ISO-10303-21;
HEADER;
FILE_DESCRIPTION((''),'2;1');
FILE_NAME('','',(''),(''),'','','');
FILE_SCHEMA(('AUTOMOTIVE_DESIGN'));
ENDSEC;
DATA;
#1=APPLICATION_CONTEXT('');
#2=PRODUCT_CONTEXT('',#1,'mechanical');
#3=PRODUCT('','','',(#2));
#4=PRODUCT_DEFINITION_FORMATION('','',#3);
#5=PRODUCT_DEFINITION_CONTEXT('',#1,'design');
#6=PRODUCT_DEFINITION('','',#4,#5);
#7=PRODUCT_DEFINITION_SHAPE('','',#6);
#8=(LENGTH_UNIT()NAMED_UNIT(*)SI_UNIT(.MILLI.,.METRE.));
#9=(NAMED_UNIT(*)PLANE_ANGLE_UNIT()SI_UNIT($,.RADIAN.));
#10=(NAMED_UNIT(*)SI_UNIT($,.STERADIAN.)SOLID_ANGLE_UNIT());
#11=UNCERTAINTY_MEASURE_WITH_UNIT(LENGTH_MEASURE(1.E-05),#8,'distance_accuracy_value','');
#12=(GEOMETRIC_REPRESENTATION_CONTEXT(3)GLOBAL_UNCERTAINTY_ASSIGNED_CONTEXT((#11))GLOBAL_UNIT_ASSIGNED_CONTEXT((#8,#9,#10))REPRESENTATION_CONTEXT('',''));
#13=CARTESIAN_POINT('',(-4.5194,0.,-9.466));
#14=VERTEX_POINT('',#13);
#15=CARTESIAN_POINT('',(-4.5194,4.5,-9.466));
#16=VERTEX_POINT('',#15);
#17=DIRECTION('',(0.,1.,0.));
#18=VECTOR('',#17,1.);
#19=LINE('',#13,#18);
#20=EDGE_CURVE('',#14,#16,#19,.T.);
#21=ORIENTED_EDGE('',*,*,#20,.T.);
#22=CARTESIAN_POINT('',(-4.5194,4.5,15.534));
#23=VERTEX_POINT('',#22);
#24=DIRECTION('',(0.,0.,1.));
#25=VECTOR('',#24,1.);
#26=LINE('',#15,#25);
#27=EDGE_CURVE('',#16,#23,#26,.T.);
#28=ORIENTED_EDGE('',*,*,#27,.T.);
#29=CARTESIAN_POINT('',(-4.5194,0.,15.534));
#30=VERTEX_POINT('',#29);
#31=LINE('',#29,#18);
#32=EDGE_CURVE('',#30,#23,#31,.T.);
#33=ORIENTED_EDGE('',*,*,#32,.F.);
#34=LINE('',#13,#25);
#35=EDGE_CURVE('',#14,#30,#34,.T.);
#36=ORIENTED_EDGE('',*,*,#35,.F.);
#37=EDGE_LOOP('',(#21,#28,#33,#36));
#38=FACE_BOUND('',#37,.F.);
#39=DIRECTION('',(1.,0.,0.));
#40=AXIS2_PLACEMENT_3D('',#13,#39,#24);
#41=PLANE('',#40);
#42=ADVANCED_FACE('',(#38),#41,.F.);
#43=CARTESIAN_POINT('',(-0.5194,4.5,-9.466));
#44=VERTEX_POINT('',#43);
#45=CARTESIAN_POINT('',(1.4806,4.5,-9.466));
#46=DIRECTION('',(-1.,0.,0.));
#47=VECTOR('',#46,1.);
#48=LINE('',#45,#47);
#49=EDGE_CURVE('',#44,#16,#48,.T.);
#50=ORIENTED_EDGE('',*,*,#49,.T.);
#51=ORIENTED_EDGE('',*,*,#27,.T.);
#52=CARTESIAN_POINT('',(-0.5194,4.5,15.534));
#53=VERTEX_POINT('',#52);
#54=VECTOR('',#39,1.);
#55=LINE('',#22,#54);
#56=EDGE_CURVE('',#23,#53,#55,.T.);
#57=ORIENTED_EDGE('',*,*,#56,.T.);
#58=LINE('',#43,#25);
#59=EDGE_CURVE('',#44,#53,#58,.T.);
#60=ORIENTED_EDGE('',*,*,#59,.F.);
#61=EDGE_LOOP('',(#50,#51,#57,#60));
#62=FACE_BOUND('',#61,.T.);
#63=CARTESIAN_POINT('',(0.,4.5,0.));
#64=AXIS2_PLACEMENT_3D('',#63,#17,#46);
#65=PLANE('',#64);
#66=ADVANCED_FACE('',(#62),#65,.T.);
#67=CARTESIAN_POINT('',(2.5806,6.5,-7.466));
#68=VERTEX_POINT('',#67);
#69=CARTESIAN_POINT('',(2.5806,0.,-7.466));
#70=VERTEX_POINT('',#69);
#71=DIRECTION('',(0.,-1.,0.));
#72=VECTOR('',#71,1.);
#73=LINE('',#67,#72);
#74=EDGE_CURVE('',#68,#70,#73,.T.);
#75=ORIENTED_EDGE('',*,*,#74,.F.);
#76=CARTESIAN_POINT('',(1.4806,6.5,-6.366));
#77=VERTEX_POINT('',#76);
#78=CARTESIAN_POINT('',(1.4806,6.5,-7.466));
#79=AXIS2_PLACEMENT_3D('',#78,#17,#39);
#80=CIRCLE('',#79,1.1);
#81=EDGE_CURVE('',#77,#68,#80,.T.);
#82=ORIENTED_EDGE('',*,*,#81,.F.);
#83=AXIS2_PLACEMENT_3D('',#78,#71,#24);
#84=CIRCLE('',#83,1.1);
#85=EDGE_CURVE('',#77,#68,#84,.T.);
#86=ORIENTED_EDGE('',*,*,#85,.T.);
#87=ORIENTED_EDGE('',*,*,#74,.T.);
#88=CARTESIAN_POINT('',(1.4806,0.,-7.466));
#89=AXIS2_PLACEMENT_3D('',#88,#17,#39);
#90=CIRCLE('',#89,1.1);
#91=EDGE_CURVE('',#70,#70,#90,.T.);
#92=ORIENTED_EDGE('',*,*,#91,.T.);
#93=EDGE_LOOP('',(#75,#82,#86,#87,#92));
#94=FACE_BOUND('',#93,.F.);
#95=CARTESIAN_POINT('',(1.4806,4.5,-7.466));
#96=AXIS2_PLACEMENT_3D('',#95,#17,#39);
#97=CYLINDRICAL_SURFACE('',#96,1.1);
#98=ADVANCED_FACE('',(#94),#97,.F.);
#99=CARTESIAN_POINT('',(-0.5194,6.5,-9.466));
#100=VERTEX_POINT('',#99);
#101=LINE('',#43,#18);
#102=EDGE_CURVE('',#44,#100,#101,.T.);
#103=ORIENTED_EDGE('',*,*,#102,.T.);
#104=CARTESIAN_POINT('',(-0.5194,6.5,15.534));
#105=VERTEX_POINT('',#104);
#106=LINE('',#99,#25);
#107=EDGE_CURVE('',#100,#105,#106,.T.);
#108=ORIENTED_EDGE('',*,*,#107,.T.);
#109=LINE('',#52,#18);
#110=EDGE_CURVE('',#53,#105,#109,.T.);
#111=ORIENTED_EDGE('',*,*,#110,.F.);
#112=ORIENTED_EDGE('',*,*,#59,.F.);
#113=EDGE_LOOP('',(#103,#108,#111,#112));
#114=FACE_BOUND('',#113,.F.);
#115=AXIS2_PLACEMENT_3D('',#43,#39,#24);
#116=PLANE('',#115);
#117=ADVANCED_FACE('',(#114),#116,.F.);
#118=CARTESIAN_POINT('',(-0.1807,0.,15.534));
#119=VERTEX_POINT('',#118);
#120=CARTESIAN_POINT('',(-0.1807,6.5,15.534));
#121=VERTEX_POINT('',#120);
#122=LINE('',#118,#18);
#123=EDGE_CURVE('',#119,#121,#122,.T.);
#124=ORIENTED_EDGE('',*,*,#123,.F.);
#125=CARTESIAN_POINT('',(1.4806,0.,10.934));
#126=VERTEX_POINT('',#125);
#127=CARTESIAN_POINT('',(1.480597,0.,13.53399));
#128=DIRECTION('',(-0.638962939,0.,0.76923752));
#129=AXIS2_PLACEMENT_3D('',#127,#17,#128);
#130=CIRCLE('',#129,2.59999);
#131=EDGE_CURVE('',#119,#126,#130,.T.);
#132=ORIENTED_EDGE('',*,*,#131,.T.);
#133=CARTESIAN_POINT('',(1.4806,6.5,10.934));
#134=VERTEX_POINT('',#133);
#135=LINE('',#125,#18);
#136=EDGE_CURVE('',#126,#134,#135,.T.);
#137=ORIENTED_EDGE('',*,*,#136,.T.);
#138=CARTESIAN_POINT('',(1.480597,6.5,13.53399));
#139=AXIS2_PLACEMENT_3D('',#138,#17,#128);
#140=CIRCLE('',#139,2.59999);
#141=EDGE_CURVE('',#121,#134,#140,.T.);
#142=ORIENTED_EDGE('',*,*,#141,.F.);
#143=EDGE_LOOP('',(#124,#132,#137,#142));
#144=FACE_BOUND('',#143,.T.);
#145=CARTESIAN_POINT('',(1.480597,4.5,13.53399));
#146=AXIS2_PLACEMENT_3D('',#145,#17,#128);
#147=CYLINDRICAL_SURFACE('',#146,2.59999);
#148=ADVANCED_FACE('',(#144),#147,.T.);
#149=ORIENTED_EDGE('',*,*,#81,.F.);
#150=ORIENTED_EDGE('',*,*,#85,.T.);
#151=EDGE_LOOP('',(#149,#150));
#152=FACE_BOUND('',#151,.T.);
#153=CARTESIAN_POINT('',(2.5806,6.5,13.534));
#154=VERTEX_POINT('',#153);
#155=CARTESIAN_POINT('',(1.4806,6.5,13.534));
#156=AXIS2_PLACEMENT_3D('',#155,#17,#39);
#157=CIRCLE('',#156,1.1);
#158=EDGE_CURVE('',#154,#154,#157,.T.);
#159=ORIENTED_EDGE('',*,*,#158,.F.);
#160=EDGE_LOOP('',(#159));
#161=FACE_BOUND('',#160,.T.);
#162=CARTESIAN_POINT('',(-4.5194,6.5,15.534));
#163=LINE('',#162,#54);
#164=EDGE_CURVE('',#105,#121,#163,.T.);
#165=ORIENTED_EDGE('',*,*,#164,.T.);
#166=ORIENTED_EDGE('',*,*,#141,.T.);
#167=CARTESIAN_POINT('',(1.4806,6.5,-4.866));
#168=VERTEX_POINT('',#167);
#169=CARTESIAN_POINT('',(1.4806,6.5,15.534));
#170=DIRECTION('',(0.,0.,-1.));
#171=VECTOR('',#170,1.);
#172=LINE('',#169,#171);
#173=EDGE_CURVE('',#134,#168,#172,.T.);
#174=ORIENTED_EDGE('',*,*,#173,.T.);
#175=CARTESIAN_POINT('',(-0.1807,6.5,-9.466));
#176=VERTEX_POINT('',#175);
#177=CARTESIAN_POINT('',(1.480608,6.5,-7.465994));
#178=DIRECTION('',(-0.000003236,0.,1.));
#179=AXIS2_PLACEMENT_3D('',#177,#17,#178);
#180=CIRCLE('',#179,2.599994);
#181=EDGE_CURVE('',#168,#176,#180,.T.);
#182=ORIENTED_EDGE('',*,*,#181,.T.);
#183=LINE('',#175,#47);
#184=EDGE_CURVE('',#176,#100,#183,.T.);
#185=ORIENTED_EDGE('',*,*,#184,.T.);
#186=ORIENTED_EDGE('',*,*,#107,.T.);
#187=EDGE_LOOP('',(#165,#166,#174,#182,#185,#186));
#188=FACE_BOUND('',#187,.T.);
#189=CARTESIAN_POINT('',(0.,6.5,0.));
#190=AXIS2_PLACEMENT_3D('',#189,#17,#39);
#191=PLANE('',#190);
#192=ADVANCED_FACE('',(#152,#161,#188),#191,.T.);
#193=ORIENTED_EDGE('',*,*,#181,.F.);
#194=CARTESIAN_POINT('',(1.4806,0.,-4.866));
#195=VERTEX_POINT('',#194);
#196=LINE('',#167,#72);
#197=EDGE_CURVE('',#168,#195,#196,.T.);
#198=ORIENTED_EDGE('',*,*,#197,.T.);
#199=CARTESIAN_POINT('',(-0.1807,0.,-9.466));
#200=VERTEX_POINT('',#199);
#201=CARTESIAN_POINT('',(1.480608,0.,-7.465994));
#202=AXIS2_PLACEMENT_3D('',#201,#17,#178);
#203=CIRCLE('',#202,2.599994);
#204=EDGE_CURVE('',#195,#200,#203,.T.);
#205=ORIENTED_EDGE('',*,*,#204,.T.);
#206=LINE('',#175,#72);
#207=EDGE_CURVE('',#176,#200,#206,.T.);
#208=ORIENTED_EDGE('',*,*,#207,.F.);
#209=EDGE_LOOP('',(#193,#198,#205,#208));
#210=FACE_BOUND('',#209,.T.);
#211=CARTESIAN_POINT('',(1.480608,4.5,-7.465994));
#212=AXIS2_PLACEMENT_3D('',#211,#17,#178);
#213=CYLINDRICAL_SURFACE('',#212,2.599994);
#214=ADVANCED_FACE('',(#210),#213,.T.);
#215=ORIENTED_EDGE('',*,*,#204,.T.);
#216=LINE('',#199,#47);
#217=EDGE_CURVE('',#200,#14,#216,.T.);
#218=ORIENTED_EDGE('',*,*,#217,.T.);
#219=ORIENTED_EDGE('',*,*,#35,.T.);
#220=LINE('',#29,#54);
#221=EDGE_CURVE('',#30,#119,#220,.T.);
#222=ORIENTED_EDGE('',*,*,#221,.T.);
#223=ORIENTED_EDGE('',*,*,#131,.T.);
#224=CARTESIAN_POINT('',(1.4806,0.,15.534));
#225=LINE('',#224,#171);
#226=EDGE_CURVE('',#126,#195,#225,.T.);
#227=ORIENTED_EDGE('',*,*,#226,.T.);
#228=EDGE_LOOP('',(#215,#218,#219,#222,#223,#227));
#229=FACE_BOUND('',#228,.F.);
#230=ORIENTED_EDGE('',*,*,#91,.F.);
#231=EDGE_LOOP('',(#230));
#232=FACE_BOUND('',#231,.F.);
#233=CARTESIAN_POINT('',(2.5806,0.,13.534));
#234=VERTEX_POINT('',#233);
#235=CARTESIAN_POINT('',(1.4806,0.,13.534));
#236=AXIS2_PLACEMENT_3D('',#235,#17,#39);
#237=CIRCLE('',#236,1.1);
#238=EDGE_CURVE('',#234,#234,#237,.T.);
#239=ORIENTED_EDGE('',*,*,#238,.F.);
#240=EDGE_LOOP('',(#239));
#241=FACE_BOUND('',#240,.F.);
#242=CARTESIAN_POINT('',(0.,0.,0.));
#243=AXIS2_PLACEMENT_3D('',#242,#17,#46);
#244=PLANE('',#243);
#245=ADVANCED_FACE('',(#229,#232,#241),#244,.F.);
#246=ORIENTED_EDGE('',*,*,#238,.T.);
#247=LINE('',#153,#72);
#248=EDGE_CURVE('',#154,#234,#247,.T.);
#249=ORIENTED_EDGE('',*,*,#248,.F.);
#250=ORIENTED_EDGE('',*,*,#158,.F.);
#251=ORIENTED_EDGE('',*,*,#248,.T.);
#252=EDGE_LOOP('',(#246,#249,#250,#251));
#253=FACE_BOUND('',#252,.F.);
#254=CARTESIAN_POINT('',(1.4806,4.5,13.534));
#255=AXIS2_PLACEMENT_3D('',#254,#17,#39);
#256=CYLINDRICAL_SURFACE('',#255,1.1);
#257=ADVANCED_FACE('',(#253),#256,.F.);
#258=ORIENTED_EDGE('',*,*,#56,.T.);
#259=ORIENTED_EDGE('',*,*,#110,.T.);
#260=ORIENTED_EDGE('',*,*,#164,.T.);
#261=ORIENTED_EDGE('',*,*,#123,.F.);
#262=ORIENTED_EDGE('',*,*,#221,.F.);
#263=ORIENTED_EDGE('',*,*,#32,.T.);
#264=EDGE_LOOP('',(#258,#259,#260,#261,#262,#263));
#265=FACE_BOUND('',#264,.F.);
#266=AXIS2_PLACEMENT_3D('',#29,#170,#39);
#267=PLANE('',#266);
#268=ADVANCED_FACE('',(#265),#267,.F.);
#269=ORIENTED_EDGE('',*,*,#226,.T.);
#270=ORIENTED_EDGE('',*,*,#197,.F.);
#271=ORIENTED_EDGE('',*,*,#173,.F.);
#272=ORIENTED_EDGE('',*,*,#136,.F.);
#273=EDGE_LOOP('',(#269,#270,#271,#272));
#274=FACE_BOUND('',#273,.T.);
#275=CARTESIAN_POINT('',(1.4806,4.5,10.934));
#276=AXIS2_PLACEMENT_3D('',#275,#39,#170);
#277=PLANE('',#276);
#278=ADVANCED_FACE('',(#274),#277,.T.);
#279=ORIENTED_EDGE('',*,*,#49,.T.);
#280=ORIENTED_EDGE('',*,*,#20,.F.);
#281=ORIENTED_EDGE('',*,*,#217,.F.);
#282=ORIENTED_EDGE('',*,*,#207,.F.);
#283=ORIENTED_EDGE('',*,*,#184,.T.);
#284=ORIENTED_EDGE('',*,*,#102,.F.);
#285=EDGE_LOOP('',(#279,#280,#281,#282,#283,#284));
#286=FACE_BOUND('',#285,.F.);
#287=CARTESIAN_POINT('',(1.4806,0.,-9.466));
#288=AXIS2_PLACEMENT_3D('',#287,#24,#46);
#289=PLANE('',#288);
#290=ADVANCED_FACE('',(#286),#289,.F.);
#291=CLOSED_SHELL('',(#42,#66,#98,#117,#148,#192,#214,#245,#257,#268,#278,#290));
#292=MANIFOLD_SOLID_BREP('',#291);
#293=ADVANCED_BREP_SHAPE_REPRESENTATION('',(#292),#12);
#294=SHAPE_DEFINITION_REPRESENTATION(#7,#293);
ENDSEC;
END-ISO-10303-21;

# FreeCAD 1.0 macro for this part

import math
import FreeCAD as App
import Part
import Sketcher

V = App.Vector

doc = App.newDocument("Part")
body = doc.addObject("PartDesign::Body", "Body")

# Sketch on XZ plane
sketch1 = body.newObject("Sketcher::SketchObject", "Sketch")
sketch1.AttachmentSupport = (doc.getObject("XZ_Plane"), [""])
sketch1.MapMode = "FlatFace"
sketch1.addGeometry([
    Part.LineSegment(V(-4.5194, -9.466, 0), V(-4.5194, 15.534, 0)),
    Part.LineSegment(V(-4.5194, 15.534, 0), V(1.4806, 15.534, 0)),
    Part.LineSegment(V(1.4806, 15.534, 0), V(1.4806, -9.466, 0)),
    Part.LineSegment(V(1.4806, -9.466, 0), V(-4.5194, -9.466, 0)),
], False)
sketch1.addConstraint([
    Sketcher.Constraint("Coincident", 0, 2, 1, 1),
    Sketcher.Constraint("Coincident", 1, 2, 2, 1),
    Sketcher.Constraint("Coincident", 2, 2, 3, 1),
    Sketcher.Constraint("Coincident", 3, 2, 0, 1),
    Sketcher.Constraint("Vertical", 0),
    Sketcher.Constraint("Horizontal", 1),
    Sketcher.Constraint("Vertical", 2),
    Sketcher.Constraint("Horizontal", 3),
    Sketcher.Constraint("DistanceX", 1, 1, 1, 2, 6.0),
    Sketcher.Constraint("DistanceY", 0, 1, 0, 2, 25.0),
    Sketcher.Constraint("DistanceY", -1, 1, 0, 2, 15.534),
    Sketcher.Constraint("DistanceX", 0, 2, -1, 1, 4.5194),
])
pad1 = body.newObject("PartDesign::Pad", "Pad")
pad1.Profile = sketch1
pad1.Length = 4.5
pad1.Reversed = True

# Sketch on XZ plane
sketch2 = body.newObject("Sketcher::SketchObject", "Sketch001")
sketch2.AttachmentSupport = (doc.getObject("XZ_Plane"), [""])
sketch2.MapMode = "FlatFace"
sketch2.AttachmentOffset = App.Placement(V(0, 0, -4.5), App.Rotation())
sketch2.addGeometry([
    Part.LineSegment(V(-0.5194, 15.534, 0), V(-0.1807, 15.534, 0)),  # 0
    Part.ArcOfCircle(Part.Circle(V(1.4806, 13.534, 0), V(0, 0, 1), 2.599984), math.radians(-90), math.radians(129.714717)),  # 1
    Part.LineSegment(V(1.4806, 10.934, 0), V(1.4806, -4.866, 0)),  # 2
    Part.ArcOfCircle(Part.Circle(V(1.4806, -7.466, 0), V(0, 0, 1), 2.6), math.radians(-129.714717), math.radians(90)),  # 3
    Part.LineSegment(V(-0.1807, -9.466, 0), V(-0.5194, -9.466, 0)),  # 4
    Part.LineSegment(V(-0.5194, -9.466, 0), V(-0.5194, 15.534, 0)),  # 5
    Part.Circle(V(1.4806, 13.534, 0), V(0, 0, 1), 1.1),  # 6
    Part.Circle(V(1.4806, -7.466, 0), V(0, 0, 1), 1.1),  # 7
], False)
sketch2.addConstraint([
    Sketcher.Constraint("Coincident", 0, 2, 1, 2),
    Sketcher.Constraint("Coincident", 1, 1, 2, 1),
    Sketcher.Constraint("Coincident", 2, 2, 3, 2),
    Sketcher.Constraint("Coincident", 3, 1, 4, 1),
    Sketcher.Constraint("Coincident", 4, 2, 5, 1),
    Sketcher.Constraint("Coincident", 5, 2, 0, 1),
    Sketcher.Constraint("Horizontal", 0),
    Sketcher.Constraint("Vertical", 2),
    Sketcher.Constraint("Horizontal", 4),
    Sketcher.Constraint("Vertical", 5),
    Sketcher.Constraint("Coincident", 6, 3, 1, 3),
    Sketcher.Constraint("Coincident", 7, 3, 3, 3),
    Sketcher.Constraint("Equal", 1, 3),
    Sketcher.Constraint("Equal", 6, 7),
    Sketcher.Constraint("Vertical", 1, 3, 3, 3),
    Sketcher.Constraint("Vertical", 7, 3, 1, 1),
    Sketcher.Constraint("Vertical", 0, 2, 3, 1),
    Sketcher.Constraint("Diameter", 6, 2.2),
    Sketcher.Constraint("DistanceY", 1, 3, 0, 2, 2.0),
    Sketcher.Constraint("DistanceX", 4, 2, 3, 3, 2.0),
    Sketcher.Constraint("Radius", 1, 2.6),
    Sketcher.Constraint("DistanceY", 5, 1, 5, 2, 25.0),
    Sketcher.Constraint("DistanceY", -1, 1, 1, 3, 13.534),
    Sketcher.Constraint("DistanceX", -1, 1, 1, 3, 1.4806),
])
pad2 = body.newObject("PartDesign::Pad", "Pad001")
pad2.Profile = sketch2
pad2.Type = "TwoLengths"
pad2.Length = 2
pad2.Length2 = 4.5
pad2.Reversed = True

# Sketch on XZ plane
sketch3 = body.newObject("Sketcher::SketchObject", "Sketch002")
sketch3.AttachmentSupport = (doc.getObject("XZ_Plane"), [""])
sketch3.MapMode = "FlatFace"
sketch3.AttachmentOffset = App.Placement(V(0, 0, -4.5), App.Rotation())
sketch3.addGeometry([
    Part.Circle(V(1.4806, -7.466, 0), V(0, 0, 1), 1.1),
    Part.Circle(V(1.4806, 13.534, 0), V(0, 0, 1), 1.1),
], False)
sketch3.addConstraint([
    Sketcher.Constraint("Equal", 0, 1),
    Sketcher.Constraint("Vertical", 0, 3, 1, 3),
    Sketcher.Constraint("Diameter", 0, 2.2),
    Sketcher.Constraint("DistanceY", 0, 3, 1, 3, 21.0),
    Sketcher.Constraint("DistanceY", 0, 3, -1, 1, 7.466),
    Sketcher.Constraint("DistanceX", -1, 1, 0, 3, 1.4806),
])
pocket1 = body.newObject("PartDesign::Pocket", "Pocket")
pocket1.Profile = sketch3
pocket1.Type = "ThroughAll"
pocket1.Midplane = True

doc.recompute()
